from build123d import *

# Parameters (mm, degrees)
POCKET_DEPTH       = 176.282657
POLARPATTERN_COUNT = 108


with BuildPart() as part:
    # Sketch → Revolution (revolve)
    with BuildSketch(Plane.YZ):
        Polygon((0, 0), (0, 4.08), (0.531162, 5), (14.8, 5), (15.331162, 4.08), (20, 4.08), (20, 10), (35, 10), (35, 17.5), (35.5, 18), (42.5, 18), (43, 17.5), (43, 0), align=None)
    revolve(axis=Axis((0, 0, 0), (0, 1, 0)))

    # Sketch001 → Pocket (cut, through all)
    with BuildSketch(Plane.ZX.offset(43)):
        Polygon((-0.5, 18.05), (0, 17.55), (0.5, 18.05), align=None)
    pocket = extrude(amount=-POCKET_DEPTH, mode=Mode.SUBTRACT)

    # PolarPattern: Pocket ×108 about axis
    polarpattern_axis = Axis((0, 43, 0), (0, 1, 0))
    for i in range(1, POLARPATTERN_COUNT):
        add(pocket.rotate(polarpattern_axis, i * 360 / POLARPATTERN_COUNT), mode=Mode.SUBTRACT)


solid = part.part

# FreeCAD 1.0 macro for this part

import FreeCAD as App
import Part
import Sketcher

V = App.Vector
Q = App.Units.Quantity


def add_polygon(sketch, points):
    """Adds a closed chain of lines whose ends are joined by coincident constraints."""
    first, n = sketch.GeometryCount, len(points)
    for a, b in zip(points, points[1:] + points[:1]):
        sketch.addGeometry(Part.LineSegment(App.Vector(*a, 0), App.Vector(*b, 0)), False)
    for i in range(n):
        sketch.addConstraint(Sketcher.Constraint("Coincident", first + i, 2, first + (i + 1) % n, 1))

doc = App.newDocument("Part")
body = doc.addObject("PartDesign::Body", "Body")

sketch1 = body.newObject("Sketcher::SketchObject", "Sketch")
sketch1.AttachmentSupport = (doc.getObject("YZ_Plane"), [""])
sketch1.MapMode = "FlatFace"
add_polygon(sketch1, [(0, 4.1), (0, 0), (43, 0), (43, 17.5), (42.5, 18), (35.5, 18), (35, 17.5), (35, 10), (20, 10), (20, 4.1), (15.3, 4.1), (14.8, 5), (0.5, 5)])
sketch1.addConstraint(Sketcher.Constraint("Vertical", 0))
sketch1.addConstraint(Sketcher.Constraint("Horizontal", 1))
sketch1.addConstraint(Sketcher.Constraint("Vertical", 2))
sketch1.addConstraint(Sketcher.Constraint("Horizontal", 4))
sketch1.addConstraint(Sketcher.Constraint("Vertical", 6))
sketch1.addConstraint(Sketcher.Constraint("Horizontal", 7))
sketch1.addConstraint(Sketcher.Constraint("Vertical", 8))
sketch1.addConstraint(Sketcher.Constraint("Horizontal", 9))
sketch1.addConstraint(Sketcher.Constraint("Horizontal", 11))
sketch1.addConstraint(Sketcher.Constraint("Coincident", 0, 2, -1, 1))
sketch1.addConstraint(Sketcher.Constraint("Perpendicular", 3, 5))
sketch1.addConstraint(Sketcher.Constraint("Horizontal", 2, 2, 5, 2))
sketch1.addConstraint(Sketcher.Constraint("Horizontal", 9, 2, 12, 2))
sketch1.addConstraint(Sketcher.Constraint("Equal", 3, 5))
sketch1.addConstraint(Sketcher.Constraint("Equal", 10, 12))
sketch1.addConstraint(Sketcher.Constraint("DistanceX", 1, 1, 1, 2, 43.0))
sketch1.addConstraint(Sketcher.Constraint("DistanceX", 4, 2, 4, 1, 7.0))
sketch1.addConstraint(Sketcher.Constraint("DistanceX", 7, 2, 7, 1, 15.0))
sketch1.addConstraint(Sketcher.Constraint("Angle", 10, Q("119.999988 deg")))
sketch1.addConstraint(Sketcher.Constraint("DistanceY", 2, 1, 2, 2, 17.5))
sketch1.addConstraint(Sketcher.Constraint("DistanceY", 6, 2, 6, 1, 7.5))
sketch1.addConstraint(Sketcher.Constraint("DistanceY", -1, 1, 3, 2, 18.0))
sketch1.addConstraint(Sketcher.Constraint("DistanceY", -1, 1, 10, 2, 5.0))
sketch1.addConstraint(Sketcher.Constraint("DistanceY", 0, 2, 0, 1, 4.08))
sketch1.addConstraint(Sketcher.Constraint("DistanceX", -1, 1, 10, 2, 14.8))
revolution = body.newObject("PartDesign::Revolution", "Revolution")
revolution.Profile = sketch1
revolution.ReferenceAxis = (sketch1, ["H_Axis"])
revolution.Angle = 360

sketch2 = body.newObject("Sketcher::SketchObject", "Sketch001")
sketch2.AttachmentSupport = (doc.getObject("XZ_Plane"), [""])
sketch2.MapMode = "FlatFace"
sketch2.AttachmentOffset = App.Placement(V(0, 0, -43), App.Rotation())
add_polygon(sketch2, [(18.1, -0.5), (17.6, 0), (18.1, 0.5)])
sketch2.addConstraint(Sketcher.Constraint("Vertical", 2))
sketch2.addConstraint(Sketcher.Constraint("PointOnObject", 0, 2, -1))
sketch2.addConstraint(Sketcher.Constraint("Perpendicular", 0, 1))
sketch2.addConstraint(Sketcher.Constraint("Equal", 0, 1))
sketch2.addConstraint(Sketcher.Constraint("DistanceY", 2, 2, 2, 1, 1.0))
sketch2.addConstraint(Sketcher.Constraint("DistanceX", -1, 1, 0, 2, 17.55))
pocket1 = body.newObject("PartDesign::Pocket", "Pocket")
pocket1.Profile = sketch2
pocket1.Type = "ThroughAll"
pocket1.Reversed = True
doc.recompute()

polarpattern = body.newObject("PartDesign::PolarPattern", "PolarPattern")
polarpattern.Originals = [pocket1]
polarpattern.Axis = (doc.getObject("Y_Axis"), [""])
polarpattern.Angle = 360
polarpattern.Occurrences = 108
body.Tip = polarpattern

doc.recompute()
